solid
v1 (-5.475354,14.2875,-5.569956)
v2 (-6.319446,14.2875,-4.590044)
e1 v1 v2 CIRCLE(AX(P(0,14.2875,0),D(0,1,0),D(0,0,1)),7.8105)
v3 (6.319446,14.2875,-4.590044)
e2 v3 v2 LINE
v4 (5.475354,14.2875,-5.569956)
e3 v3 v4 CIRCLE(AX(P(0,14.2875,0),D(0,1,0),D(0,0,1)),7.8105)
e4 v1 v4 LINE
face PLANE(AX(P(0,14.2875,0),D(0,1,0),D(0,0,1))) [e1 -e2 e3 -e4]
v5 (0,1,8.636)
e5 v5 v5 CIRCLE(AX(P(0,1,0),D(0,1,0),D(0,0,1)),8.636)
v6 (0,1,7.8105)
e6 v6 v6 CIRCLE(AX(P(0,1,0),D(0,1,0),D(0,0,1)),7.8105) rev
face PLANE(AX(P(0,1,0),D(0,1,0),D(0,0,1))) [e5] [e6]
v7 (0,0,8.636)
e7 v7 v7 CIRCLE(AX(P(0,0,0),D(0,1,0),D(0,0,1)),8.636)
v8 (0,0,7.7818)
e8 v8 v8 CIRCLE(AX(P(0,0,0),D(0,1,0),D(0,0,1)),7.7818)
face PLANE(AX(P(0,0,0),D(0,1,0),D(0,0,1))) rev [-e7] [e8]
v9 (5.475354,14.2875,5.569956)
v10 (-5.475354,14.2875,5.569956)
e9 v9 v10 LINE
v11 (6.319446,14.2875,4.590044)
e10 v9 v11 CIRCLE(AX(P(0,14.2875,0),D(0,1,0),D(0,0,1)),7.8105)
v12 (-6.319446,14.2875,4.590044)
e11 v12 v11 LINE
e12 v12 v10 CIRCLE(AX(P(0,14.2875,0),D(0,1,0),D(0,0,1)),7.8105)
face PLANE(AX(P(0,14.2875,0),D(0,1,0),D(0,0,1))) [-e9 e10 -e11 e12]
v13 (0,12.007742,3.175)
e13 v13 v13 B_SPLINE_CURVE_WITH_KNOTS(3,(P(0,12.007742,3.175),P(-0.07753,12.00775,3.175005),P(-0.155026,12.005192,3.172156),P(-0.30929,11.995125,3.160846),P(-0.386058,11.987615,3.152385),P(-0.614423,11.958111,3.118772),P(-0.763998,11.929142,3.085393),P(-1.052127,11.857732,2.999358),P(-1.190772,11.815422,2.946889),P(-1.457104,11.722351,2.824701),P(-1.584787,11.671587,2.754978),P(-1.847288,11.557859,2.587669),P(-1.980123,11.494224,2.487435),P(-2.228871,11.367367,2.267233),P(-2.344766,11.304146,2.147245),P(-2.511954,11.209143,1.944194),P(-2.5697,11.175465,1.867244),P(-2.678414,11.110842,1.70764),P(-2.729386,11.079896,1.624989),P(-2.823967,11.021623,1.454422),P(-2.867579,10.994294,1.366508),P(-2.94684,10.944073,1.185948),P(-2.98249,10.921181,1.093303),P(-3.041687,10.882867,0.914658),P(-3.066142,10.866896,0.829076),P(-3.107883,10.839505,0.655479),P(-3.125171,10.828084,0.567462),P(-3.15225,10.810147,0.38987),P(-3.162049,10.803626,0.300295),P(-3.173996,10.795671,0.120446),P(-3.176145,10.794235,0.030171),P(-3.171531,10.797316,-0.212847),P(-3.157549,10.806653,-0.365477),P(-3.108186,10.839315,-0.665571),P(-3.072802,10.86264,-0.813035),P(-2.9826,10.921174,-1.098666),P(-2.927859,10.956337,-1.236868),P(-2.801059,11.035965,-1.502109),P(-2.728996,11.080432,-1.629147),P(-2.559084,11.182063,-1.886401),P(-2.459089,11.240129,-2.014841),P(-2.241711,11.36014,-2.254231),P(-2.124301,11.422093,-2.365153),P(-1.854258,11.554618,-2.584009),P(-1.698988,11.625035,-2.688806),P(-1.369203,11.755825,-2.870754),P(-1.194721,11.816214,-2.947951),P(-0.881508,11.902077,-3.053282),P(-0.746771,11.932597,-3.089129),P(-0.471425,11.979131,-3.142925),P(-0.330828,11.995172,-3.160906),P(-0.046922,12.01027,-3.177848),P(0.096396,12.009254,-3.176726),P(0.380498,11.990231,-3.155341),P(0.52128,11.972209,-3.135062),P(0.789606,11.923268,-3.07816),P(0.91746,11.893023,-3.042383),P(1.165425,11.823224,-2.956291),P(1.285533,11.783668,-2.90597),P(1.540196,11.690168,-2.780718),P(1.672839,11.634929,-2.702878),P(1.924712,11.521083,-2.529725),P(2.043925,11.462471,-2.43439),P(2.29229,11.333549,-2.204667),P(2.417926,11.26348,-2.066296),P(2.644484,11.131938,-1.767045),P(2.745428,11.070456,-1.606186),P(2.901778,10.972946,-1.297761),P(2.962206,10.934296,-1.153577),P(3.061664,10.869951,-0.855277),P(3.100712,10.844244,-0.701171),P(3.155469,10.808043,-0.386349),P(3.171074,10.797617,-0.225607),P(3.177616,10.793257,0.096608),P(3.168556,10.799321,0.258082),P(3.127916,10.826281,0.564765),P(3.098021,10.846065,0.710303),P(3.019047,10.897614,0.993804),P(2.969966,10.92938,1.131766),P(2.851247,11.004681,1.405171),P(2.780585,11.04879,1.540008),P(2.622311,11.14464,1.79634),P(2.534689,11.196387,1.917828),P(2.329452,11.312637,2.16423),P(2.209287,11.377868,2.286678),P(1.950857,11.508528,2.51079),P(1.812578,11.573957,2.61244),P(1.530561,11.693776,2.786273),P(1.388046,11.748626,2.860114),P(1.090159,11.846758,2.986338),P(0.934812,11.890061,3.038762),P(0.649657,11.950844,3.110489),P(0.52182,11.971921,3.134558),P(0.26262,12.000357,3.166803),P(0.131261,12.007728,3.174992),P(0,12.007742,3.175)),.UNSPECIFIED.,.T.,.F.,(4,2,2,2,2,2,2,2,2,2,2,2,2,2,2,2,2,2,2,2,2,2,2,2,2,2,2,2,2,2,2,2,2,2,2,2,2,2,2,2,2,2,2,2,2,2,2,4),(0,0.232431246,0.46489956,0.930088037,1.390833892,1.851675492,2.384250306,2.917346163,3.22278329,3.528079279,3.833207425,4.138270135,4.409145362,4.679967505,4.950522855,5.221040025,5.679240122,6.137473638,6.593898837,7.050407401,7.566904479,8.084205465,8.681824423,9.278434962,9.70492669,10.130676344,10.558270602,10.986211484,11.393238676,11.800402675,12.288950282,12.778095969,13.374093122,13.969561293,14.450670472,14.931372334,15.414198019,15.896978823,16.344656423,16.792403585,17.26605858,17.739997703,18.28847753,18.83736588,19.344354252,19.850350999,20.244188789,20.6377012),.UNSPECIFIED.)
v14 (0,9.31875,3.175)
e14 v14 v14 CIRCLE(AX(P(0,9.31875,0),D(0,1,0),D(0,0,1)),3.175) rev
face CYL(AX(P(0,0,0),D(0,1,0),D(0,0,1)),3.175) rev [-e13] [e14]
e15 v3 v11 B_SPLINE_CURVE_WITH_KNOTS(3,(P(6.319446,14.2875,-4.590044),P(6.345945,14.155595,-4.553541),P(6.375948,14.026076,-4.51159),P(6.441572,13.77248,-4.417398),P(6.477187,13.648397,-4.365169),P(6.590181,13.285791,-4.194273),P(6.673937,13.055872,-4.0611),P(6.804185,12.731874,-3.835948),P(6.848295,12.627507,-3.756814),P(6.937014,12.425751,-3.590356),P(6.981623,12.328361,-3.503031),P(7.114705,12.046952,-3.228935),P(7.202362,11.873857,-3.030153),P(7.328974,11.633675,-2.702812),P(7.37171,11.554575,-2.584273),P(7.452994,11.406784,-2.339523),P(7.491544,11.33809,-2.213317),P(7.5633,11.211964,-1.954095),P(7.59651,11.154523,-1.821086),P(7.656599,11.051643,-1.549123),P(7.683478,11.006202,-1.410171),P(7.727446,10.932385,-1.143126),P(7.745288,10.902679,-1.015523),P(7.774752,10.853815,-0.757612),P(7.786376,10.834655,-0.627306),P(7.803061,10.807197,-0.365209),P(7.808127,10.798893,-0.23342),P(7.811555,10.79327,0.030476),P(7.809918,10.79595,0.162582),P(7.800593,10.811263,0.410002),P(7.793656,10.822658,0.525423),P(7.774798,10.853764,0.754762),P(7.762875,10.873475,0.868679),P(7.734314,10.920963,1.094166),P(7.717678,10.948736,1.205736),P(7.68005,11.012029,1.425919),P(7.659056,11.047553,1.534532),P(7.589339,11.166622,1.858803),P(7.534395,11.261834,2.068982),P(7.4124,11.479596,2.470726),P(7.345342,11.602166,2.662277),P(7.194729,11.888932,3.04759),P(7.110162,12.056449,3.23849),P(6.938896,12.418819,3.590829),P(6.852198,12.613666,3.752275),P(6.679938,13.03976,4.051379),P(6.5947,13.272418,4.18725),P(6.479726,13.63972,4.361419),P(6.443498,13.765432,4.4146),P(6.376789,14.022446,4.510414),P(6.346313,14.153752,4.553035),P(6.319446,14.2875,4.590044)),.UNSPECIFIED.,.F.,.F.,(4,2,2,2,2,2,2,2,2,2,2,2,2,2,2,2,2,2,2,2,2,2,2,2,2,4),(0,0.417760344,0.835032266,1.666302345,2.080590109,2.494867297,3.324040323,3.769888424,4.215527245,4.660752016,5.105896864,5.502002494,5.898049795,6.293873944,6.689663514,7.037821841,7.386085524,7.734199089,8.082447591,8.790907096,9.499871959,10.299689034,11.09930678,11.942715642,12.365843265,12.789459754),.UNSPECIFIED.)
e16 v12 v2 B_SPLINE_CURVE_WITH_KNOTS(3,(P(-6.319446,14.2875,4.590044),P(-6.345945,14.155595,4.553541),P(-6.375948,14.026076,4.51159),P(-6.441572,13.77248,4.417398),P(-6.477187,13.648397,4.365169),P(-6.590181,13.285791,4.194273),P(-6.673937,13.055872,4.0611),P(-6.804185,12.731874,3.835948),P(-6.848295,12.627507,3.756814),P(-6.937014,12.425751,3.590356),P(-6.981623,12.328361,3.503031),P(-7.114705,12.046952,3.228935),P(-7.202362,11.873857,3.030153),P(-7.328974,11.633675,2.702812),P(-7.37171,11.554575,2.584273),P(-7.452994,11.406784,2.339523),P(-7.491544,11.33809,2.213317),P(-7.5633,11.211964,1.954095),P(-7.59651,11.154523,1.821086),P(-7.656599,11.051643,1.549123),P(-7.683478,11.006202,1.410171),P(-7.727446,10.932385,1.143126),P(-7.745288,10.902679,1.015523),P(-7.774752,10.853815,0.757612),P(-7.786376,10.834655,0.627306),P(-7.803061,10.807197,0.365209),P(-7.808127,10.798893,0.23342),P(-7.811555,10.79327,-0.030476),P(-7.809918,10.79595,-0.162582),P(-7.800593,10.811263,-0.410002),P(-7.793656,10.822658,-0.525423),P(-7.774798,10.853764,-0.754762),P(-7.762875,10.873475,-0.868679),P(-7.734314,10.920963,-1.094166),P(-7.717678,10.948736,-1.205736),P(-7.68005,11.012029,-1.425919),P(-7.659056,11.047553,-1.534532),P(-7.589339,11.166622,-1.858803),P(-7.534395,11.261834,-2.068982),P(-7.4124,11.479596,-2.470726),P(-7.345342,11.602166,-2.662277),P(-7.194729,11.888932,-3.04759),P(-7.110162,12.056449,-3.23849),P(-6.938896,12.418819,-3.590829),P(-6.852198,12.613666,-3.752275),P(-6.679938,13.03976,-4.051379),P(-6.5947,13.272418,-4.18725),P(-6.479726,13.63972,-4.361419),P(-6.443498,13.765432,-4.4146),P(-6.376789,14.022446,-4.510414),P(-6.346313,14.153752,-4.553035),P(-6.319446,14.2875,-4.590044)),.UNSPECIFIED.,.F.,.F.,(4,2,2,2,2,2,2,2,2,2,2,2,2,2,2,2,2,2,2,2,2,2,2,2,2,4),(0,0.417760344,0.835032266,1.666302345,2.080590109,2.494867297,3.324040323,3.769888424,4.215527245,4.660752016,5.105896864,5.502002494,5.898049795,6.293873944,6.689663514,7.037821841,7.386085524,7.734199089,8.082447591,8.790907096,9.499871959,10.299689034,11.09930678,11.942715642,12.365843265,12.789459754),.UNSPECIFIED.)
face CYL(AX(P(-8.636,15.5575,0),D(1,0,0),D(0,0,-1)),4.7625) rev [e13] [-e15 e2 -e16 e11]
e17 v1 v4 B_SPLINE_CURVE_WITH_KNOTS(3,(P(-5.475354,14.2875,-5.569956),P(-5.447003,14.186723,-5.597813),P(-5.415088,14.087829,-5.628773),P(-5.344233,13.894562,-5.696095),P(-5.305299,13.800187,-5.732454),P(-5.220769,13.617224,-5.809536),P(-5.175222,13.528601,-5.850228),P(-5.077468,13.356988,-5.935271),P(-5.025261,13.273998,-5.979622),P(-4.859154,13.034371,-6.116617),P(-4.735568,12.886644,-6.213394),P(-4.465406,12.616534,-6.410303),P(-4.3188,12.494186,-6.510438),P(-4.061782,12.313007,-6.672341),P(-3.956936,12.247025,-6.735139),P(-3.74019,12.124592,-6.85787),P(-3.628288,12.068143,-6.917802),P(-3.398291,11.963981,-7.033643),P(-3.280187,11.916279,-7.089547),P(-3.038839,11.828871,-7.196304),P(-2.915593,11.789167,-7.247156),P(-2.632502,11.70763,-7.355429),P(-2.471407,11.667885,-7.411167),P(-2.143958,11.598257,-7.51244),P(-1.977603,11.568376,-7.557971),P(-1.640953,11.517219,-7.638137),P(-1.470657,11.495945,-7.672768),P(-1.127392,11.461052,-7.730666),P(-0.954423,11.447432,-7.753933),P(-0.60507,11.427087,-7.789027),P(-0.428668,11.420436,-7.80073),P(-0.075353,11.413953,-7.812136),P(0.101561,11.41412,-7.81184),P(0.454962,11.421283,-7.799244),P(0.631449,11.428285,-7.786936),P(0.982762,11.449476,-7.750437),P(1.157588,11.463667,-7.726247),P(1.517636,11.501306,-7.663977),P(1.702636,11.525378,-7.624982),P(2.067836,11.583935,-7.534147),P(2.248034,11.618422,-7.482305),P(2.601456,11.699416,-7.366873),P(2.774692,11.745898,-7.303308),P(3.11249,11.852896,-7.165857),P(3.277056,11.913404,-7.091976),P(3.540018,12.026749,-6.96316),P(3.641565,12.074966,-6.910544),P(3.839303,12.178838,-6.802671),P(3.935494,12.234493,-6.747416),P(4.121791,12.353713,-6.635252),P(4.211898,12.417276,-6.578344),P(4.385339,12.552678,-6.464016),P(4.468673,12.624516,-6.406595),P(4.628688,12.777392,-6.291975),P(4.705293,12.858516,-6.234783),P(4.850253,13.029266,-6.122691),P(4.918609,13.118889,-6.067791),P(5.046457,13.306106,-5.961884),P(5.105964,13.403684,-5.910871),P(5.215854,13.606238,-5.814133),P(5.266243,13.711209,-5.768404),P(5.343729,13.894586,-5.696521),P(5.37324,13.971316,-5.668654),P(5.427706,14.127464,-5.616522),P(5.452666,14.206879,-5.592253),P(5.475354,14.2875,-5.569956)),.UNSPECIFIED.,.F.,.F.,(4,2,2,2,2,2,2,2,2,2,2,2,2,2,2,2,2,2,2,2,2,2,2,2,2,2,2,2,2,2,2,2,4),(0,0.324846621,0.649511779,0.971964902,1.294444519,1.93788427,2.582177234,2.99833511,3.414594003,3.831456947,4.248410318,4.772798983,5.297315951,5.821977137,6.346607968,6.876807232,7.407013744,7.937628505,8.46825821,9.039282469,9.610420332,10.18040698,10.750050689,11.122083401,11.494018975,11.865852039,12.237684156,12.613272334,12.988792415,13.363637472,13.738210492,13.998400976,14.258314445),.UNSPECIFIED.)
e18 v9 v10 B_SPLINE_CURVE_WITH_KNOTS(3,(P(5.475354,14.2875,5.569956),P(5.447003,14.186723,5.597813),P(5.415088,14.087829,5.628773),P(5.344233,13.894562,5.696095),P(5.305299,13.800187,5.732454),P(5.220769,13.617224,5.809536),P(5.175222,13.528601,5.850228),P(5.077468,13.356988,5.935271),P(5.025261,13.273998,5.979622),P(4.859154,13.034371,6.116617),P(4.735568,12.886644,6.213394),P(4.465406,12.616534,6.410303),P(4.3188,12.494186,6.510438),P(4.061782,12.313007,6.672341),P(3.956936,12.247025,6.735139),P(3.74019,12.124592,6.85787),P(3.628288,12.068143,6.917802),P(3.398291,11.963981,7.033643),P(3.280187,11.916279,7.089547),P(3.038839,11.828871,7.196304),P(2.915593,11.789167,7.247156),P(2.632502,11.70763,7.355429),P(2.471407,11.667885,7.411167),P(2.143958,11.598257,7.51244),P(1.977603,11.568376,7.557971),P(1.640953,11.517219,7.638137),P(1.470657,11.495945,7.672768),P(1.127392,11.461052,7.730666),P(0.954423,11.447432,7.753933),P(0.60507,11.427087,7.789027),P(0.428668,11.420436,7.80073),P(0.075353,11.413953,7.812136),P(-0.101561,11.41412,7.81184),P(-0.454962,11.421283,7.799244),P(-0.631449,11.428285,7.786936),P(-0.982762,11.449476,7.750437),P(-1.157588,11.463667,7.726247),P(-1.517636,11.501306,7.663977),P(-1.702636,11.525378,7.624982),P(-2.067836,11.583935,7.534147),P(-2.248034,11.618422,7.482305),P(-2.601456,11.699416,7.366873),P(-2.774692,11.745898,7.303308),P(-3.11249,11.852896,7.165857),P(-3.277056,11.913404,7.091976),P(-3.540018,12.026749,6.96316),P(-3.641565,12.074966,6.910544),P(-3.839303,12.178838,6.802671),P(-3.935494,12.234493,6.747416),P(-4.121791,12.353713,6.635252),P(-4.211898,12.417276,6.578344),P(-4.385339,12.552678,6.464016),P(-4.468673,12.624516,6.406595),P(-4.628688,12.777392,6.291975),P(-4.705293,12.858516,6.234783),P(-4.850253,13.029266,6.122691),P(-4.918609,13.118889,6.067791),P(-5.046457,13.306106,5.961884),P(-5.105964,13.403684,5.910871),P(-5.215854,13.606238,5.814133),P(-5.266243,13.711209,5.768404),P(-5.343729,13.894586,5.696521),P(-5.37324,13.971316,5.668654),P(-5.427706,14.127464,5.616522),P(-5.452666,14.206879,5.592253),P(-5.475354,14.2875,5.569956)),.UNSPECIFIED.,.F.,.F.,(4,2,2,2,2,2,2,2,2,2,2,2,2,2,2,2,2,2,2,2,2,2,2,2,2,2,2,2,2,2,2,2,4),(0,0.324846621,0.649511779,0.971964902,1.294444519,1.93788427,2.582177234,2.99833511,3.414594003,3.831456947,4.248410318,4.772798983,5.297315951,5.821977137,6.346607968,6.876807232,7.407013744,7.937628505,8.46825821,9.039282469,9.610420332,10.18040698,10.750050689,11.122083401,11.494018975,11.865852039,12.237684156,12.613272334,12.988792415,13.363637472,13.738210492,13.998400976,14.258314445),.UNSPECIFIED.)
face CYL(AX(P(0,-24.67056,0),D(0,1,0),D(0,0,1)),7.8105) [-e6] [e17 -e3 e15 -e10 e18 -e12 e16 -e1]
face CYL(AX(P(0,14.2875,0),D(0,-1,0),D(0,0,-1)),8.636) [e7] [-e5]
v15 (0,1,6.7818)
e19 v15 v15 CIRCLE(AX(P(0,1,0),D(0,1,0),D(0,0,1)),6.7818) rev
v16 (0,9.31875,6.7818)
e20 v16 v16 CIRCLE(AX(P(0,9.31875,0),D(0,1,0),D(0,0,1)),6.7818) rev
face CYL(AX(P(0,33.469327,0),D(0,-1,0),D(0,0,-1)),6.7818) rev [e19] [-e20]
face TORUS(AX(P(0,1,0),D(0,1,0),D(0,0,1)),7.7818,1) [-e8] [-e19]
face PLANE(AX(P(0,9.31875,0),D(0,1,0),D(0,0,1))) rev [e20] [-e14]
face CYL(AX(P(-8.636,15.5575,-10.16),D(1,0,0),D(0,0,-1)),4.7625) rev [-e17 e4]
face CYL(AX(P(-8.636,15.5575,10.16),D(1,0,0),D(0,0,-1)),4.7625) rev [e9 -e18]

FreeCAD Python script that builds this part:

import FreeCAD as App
import Part
import Sketcher
Q = App.Units.Quantity


def edges_at(feature, points):
    """Names of the edges that pass closest to the given points."""
    edges = feature.Shape.Edges
    near = lambda p: min(range(len(edges)), key=lambda i: edges[i].distToShape(Part.Vertex(*p))[0])
    return sorted({f"Edge{near(p) + 1}" for p in points})

doc = App.newDocument("Part")
params = doc.addObject("Spreadsheet::Sheet", "Params")
for row, (alias, value) in enumerate([
    ("sketch1_diameter", "0.68 in"),
    ("pad1_length", "0.5625 in"),
    ("sketch2_diameter", "0.375 in"),
    ("sketch3_diameter", "0.615 in"),
    ("pocket2_length", "13.2875 mm"),
    ("sketch4_diameter", "0.25 in"),
    ("sketch5_diameter", "0.534 in"),
    ("pocket4_length", "9.31875 mm"),
    ("fillet_radius", "1 mm"),
], start=1):
    params.set(f"A{row}", alias)
    params.set(f"B{row}", "=" + value)
    params.setAlias(f"B{row}", alias)

body = doc.addObject("PartDesign::Body", "Body")

sketch1 = body.newObject("Sketcher::SketchObject", "Sketch")
sketch1.AttachmentSupport = (doc.getObject("XZ_Plane"), [""])
sketch1.MapMode = "FlatFace"
sketch1.addGeometry(Part.Circle(App.Vector(0, 0, 0), App.Vector(0, 0, 1), 9), False)
sketch1.addConstraint([
    Sketcher.Constraint("Coincident", 0, 3, -1, 1),
    Sketcher.Constraint("Diameter", 0, Q("0.68 in")),
])
sketch1.setExpression("Constraints[1]", "Params.sketch1_diameter")
pad1 = body.newObject("PartDesign::Pad", "Pad")
pad1.Profile = sketch1
pad1.setExpression("Length", "Params.pad1_length")
pad1.Reversed = True

sketch2 = body.newObject("Sketcher::SketchObject", "Sketch001")
sketch2.AttachmentSupport = (doc.getObject("YZ_Plane"), [""])
sketch2.MapMode = "FlatFace"
sketch2.addGeometry([
    Part.Circle(App.Vector(15.6, 0, 0), App.Vector(0, 0, 1), 4.8),
    Part.Circle(App.Vector(15.6, 10.2, 0), App.Vector(0, 0, 1), 4.8),
    Part.Circle(App.Vector(15.6, -10.2, 0), App.Vector(0, 0, 1), 4.8),
], False)
sketch2.addConstraint([
    Sketcher.Constraint("Equal", 0, 1),
    Sketcher.Constraint("Equal", 1, 2),
    Sketcher.Constraint("Symmetric", 1, 3, 2, 3, -1),
    Sketcher.Constraint("PointOnObject", 0, 3, -1),
    Sketcher.Constraint("Vertical", 0, 3, 1, 3),
    Sketcher.Constraint("Diameter", 0, Q("0.375 in")),
    Sketcher.Constraint("DistanceY", -1, 1, 1, 3, Q("0.4 in")),
    Sketcher.Constraint("DistanceX", -1, 1, 0, 3, Q("0.6125 in")),
])
sketch2.setExpression("Constraints[5]", "Params.sketch2_diameter")
pocket1 = body.newObject("PartDesign::Pocket", "Pocket")
pocket1.Profile = sketch2
pocket1.Type = "ThroughAll"
pocket1.Midplane = True

sketch3 = body.newObject("Sketcher::SketchObject", "Sketch002")
sketch3.AttachmentSupport = (doc.getObject("XZ_Plane"), [""])
sketch3.MapMode = "FlatFace"
sketch3.AttachmentOffset = App.Placement(App.Vector(0, 0, -0.5625 * 25.4), App.Rotation())
sketch3.addGeometry([
    Part.LineSegment(App.Vector(-12, -12, 0), App.Vector(-12, 12, 0)),
    Part.LineSegment(App.Vector(-12, 12, 0), App.Vector(12, 12, 0)),
    Part.LineSegment(App.Vector(12, 12, 0), App.Vector(12, -12, 0)),
    Part.LineSegment(App.Vector(12, -12, 0), App.Vector(-12, -12, 0)),
    Part.Circle(App.Vector(0, 0, 0), App.Vector(0, 0, 1), 8),
], False)
sketch3.addConstraint([
    Sketcher.Constraint("Coincident", 0, 2, 1, 1),
    Sketcher.Constraint("Coincident", 1, 2, 2, 1),
    Sketcher.Constraint("Coincident", 2, 2, 3, 1),
    Sketcher.Constraint("Coincident", 3, 2, 0, 1),
    Sketcher.Constraint("Vertical", 0),
    Sketcher.Constraint("Horizontal", 1),
    Sketcher.Constraint("Vertical", 2),
    Sketcher.Constraint("Horizontal", 3),
    Sketcher.Constraint("Coincident", 4, 3, -1, 1),
    Sketcher.Constraint("Symmetric", 0, 2, 2, 2, -1, 1),
    Sketcher.Constraint("Equal", 3, 0),
    Sketcher.Constraint("Diameter", 4, Q("0.615 in")),
    Sketcher.Constraint("DistanceX", 1, 1, 1, 2, 24.932),
])
sketch3.setExpression("Constraints[11]", "Params.sketch3_diameter")
pocket2 = body.newObject("PartDesign::Pocket", "Pocket001")
pocket2.Profile = sketch3
pocket2.setExpression("Length", "Params.pocket2_length")
pocket2.Reversed = True

sketch4 = body.newObject("Sketcher::SketchObject", "Sketch003")
sketch4.AttachmentSupport = (doc.getObject("XZ_Plane"), [""])
sketch4.MapMode = "FlatFace"
sketch4.AttachmentOffset = App.Placement(App.Vector(0, 0, -0.5625 * 25.4), App.Rotation())
sketch4.addGeometry(Part.Circle(App.Vector(0, 0, 0), App.Vector(0, 0, 1), 3.2), False)
sketch4.addConstraint([
    Sketcher.Constraint("Coincident", 0, 3, -1, 1),
    Sketcher.Constraint("Diameter", 0, Q("0.25 in")),
])
sketch4.setExpression("Constraints[1]", "Params.sketch4_diameter")
pocket3 = body.newObject("PartDesign::Pocket", "Pocket002")
pocket3.Profile = sketch4
pocket3.Type = "ThroughAll"
pocket3.Reversed = True

sketch5 = body.newObject("Sketcher::SketchObject", "Sketch004")
sketch5.AttachmentSupport = (doc.getObject("XZ_Plane"), [""])
sketch5.MapMode = "FlatFace"
sketch5.addGeometry(Part.Circle(App.Vector(0, 0, 0), App.Vector(0, 0, 1), 7), False)
sketch5.addConstraint([
    Sketcher.Constraint("Coincident", 0, 3, -1, 1),
    Sketcher.Constraint("Diameter", 0, Q("0.534 in")),
])
sketch5.setExpression("Constraints[1]", "Params.sketch5_diameter")
pocket4 = body.newObject("PartDesign::Pocket", "Pocket003")
pocket4.Profile = sketch5
pocket4.setExpression("Length", "Params.pocket4_length")
doc.recompute()

fillet = body.newObject("PartDesign::Fillet", "Fillet")
fillet.Base = (pocket4, edges_at(pocket4, [(-6.782, 0, 0)]))
fillet.setExpression("Radius", "Params.fillet_radius")

doc.recompute()
